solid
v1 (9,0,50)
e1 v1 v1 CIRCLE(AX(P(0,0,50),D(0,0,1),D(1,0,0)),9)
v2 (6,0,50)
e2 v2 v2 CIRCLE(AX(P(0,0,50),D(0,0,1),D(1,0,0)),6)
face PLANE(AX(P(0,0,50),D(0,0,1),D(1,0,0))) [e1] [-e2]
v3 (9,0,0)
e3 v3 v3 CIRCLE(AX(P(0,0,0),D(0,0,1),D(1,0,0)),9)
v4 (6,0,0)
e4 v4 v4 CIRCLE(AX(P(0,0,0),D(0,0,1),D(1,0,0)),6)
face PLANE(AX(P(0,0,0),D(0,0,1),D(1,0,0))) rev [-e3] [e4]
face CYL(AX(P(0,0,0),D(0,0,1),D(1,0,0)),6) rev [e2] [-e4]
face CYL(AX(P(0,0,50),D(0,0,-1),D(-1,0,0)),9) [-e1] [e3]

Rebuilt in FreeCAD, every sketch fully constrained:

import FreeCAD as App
import Part
import Sketcher
from FreeCAD import Vector
Q = App.Units.Quantity

doc = App.newDocument("Part")
body = doc.addObject("PartDesign::Body", "Body")

sketch1 = body.newObject("Sketcher::SketchObject", "Sketch")
sketch1.AttachmentSupport = (doc.getObject("XY_Plane"), [""])
sketch1.MapMode = "FlatFace"
sketch1.addGeometry(Part.Circle(Vector(0, 0, 0), Vector(0, 0, 1), 9), False)
sketch1.addConstraint(Sketcher.Constraint("Coincident", 0, 3, -1, 1))
sketch1.addConstraint(Sketcher.Constraint("Diameter", 0, Q("18 mm")))
pad1 = body.newObject("PartDesign::Pad", "Pad")
pad1.Profile = sketch1
pad1.Length = 50

sketch2 = body.newObject("Sketcher::SketchObject", "Sketch001")
sketch2.AttachmentSupport = (doc.getObject("XY_Plane"), [""])
sketch2.MapMode = "FlatFace"
sketch2.AttachmentOffset = App.Placement(Vector(0, 0, 50), App.Rotation())
sketch2.addGeometry(Part.Circle(Vector(0, 0, 0), Vector(0, 0, 1), 6), False)
sketch2.addConstraint(Sketcher.Constraint("Coincident", 0, 3, -1, 1))
sketch2.addConstraint(Sketcher.Constraint("Diameter", 0, Q("12 mm")))
pocket1 = body.newObject("PartDesign::Pocket", "Pocket")
pocket1.Profile = sketch2
pocket1.Type = "ThroughAll"

doc.recompute()
